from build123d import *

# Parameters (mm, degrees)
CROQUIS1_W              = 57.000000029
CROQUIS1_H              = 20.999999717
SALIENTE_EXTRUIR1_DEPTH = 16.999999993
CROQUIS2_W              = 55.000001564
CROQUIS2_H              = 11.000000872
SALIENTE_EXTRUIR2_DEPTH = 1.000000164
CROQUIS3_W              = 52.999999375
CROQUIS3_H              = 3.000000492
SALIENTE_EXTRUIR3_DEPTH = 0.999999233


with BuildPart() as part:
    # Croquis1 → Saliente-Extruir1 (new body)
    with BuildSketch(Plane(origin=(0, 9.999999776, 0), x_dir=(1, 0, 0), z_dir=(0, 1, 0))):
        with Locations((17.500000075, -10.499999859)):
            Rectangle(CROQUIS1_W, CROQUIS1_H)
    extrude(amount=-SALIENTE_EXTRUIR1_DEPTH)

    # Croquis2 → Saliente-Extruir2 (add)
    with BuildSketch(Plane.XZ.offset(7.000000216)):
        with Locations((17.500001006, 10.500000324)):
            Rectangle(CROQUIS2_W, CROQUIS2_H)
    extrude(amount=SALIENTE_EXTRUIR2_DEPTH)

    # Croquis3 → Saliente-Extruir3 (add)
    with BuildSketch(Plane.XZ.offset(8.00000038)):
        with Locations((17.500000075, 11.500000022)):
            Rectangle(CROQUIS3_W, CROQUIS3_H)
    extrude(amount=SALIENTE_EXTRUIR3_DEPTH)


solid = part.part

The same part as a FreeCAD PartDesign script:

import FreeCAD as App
import Part
import Sketcher

doc = App.newDocument("Part")
params = doc.addObject("Spreadsheet::Sheet", "Params")
for row, (alias, value) in enumerate([
    ("sketch1_width", "57 mm"),
    ("sketch1_height", "21 mm"),
    ("pad1_length", "17 mm"),
    ("sketch2_width", "55.000002 mm"),
    ("sketch2_height", "11.000001 mm"),
    ("pad2_length", "1 mm"),
    ("sketch3_width", "52.999999 mm"),
    ("sketch3_height", "3 mm"),
    ("pad3_length", "0.999999 mm"),
], start=1):
    params.set(f"A{row}", alias)
    params.set(f"B{row}", "=" + value)
    params.setAlias(f"B{row}", alias)

body = doc.addObject("PartDesign::Body", "Body")

# Sketch on XZ plane
sketch1 = doc.addObject("Sketcher::SketchObject", "Sketch")
body.addObject(sketch1)
sketch1.AttachmentSupport = (doc.XZ_Plane, [""])
sketch1.MapMode = "FlatFace"
sketch1.AttachmentOffset = App.Placement(App.Vector(0, 0, -10), App.Rotation())
sketch1.addGeometry(Part.LineSegment(App.Vector(-11, 0, 0), App.Vector(-11, 21, 0)), False)
sketch1.addGeometry(Part.LineSegment(App.Vector(-11, 21, 0), App.Vector(46, 21, 0)), False)
sketch1.addGeometry(Part.LineSegment(App.Vector(46, 21, 0), App.Vector(46, 0, 0)), False)
sketch1.addGeometry(Part.LineSegment(App.Vector(46, 0, 0), App.Vector(-11, 0, 0)), False)
sketch1.addConstraint(Sketcher.Constraint("Coincident", 0, 2, 1, 1))
sketch1.addConstraint(Sketcher.Constraint("Coincident", 1, 2, 2, 1))
sketch1.addConstraint(Sketcher.Constraint("Coincident", 2, 2, 3, 1))
sketch1.addConstraint(Sketcher.Constraint("Coincident", 3, 2, 0, 1))
sketch1.addConstraint(Sketcher.Constraint("Vertical", 0))
sketch1.addConstraint(Sketcher.Constraint("Horizontal", 1))
sketch1.addConstraint(Sketcher.Constraint("Vertical", 2))
sketch1.addConstraint(Sketcher.Constraint("Horizontal", 3))
sketch1.addConstraint(Sketcher.Constraint("PointOnObject", 2, 2, -1))
sketch1.addConstraint(Sketcher.Constraint("DistanceX", 1, 1, 1, 2, 57.0))
sketch1.addConstraint(Sketcher.Constraint("DistanceY", 0, 1, 0, 2, 21.0))
sketch1.addConstraint(Sketcher.Constraint("DistanceX", 0, 2, -1, 1, 11.0))
sketch1.setExpression("Constraints[9]", "Params.sketch1_width")
sketch1.setExpression("Constraints[10]", "Params.sketch1_height")
pad1 = doc.addObject("PartDesign::Pad", "Pad")
body.addObject(pad1)
pad1.Profile = sketch1
pad1.setExpression("Length", "Params.pad1_length")

# Sketch on XZ plane
sketch2 = doc.addObject("Sketcher::SketchObject", "Sketch001")
body.addObject(sketch2)
sketch2.AttachmentSupport = (doc.XZ_Plane, [""])
sketch2.MapMode = "FlatFace"
sketch2.AttachmentOffset = App.Placement(App.Vector(0, 0, 7), App.Rotation())
sketch2.addGeometry(Part.LineSegment(App.Vector(-10, 16, 0), App.Vector(-10, 5, 0)), False)
sketch2.addGeometry(Part.LineSegment(App.Vector(-10, 5, 0), App.Vector(45, 5, 0)), False)
sketch2.addGeometry(Part.LineSegment(App.Vector(45, 5, 0), App.Vector(45, 16, 0)), False)
sketch2.addGeometry(Part.LineSegment(App.Vector(45, 16, 0), App.Vector(-10, 16, 0)), False)
sketch2.addConstraint(Sketcher.Constraint("Coincident", 0, 2, 1, 1))
sketch2.addConstraint(Sketcher.Constraint("Coincident", 1, 2, 2, 1))
sketch2.addConstraint(Sketcher.Constraint("Coincident", 2, 2, 3, 1))
sketch2.addConstraint(Sketcher.Constraint("Coincident", 3, 2, 0, 1))
sketch2.addConstraint(Sketcher.Constraint("Vertical", 0))
sketch2.addConstraint(Sketcher.Constraint("Horizontal", 1))
sketch2.addConstraint(Sketcher.Constraint("Vertical", 2))
sketch2.addConstraint(Sketcher.Constraint("Horizontal", 3))
sketch2.addConstraint(Sketcher.Constraint("DistanceX", 1, 1, 1, 2, 55.000002))
sketch2.addConstraint(Sketcher.Constraint("DistanceY", 0, 2, 0, 1, 11.000001))
sketch2.addConstraint(Sketcher.Constraint("DistanceX", 0, 2, -1, 1, 10.0))
sketch2.addConstraint(Sketcher.Constraint("DistanceY", -1, 1, 0, 2, 5.0))
sketch2.setExpression("Constraints[8]", "Params.sketch2_width")
sketch2.setExpression("Constraints[9]", "Params.sketch2_height")
pad2 = doc.addObject("PartDesign::Pad", "Pad001")
body.addObject(pad2)
pad2.Profile = sketch2
pad2.setExpression("Length", "Params.pad2_length")

# Sketch on XZ plane
sketch3 = doc.addObject("Sketcher::SketchObject", "Sketch002")
body.addObject(sketch3)
sketch3.AttachmentSupport = (doc.XZ_Plane, [""])
sketch3.MapMode = "FlatFace"
sketch3.AttachmentOffset = App.Placement(App.Vector(0, 0, 8), App.Rotation())
sketch3.addGeometry(Part.LineSegment(App.Vector(-9, 13, 0), App.Vector(-9, 10, 0)), False)
sketch3.addGeometry(Part.LineSegment(App.Vector(-9, 10, 0), App.Vector(44, 10, 0)), False)
sketch3.addGeometry(Part.LineSegment(App.Vector(44, 10, 0), App.Vector(44, 13, 0)), False)
sketch3.addGeometry(Part.LineSegment(App.Vector(44, 13, 0), App.Vector(-9, 13, 0)), False)
sketch3.addConstraint(Sketcher.Constraint("Coincident", 0, 2, 1, 1))
sketch3.addConstraint(Sketcher.Constraint("Coincident", 1, 2, 2, 1))
sketch3.addConstraint(Sketcher.Constraint("Coincident", 2, 2, 3, 1))
sketch3.addConstraint(Sketcher.Constraint("Coincident", 3, 2, 0, 1))
sketch3.addConstraint(Sketcher.Constraint("Vertical", 0))
sketch3.addConstraint(Sketcher.Constraint("Horizontal", 1))
sketch3.addConstraint(Sketcher.Constraint("Vertical", 2))
sketch3.addConstraint(Sketcher.Constraint("Horizontal", 3))
sketch3.addConstraint(Sketcher.Constraint("DistanceX", 1, 1, 1, 2, 52.999999))
sketch3.addConstraint(Sketcher.Constraint("DistanceY", 0, 2, 0, 1, 3.0))
sketch3.addConstraint(Sketcher.Constraint("DistanceX", 0, 2, -1, 1, 9.0))
sketch3.addConstraint(Sketcher.Constraint("DistanceY", -1, 1, 0, 2, 10.0))
sketch3.setExpression("Constraints[8]", "Params.sketch3_width")
sketch3.setExpression("Constraints[9]", "Params.sketch3_height")
pad3 = doc.addObject("PartDesign::Pad", "Pad002")
body.addObject(pad3)
pad3.Profile = sketch3
pad3.setExpression("Length", "Params.pad3_length")

doc.recompute()
